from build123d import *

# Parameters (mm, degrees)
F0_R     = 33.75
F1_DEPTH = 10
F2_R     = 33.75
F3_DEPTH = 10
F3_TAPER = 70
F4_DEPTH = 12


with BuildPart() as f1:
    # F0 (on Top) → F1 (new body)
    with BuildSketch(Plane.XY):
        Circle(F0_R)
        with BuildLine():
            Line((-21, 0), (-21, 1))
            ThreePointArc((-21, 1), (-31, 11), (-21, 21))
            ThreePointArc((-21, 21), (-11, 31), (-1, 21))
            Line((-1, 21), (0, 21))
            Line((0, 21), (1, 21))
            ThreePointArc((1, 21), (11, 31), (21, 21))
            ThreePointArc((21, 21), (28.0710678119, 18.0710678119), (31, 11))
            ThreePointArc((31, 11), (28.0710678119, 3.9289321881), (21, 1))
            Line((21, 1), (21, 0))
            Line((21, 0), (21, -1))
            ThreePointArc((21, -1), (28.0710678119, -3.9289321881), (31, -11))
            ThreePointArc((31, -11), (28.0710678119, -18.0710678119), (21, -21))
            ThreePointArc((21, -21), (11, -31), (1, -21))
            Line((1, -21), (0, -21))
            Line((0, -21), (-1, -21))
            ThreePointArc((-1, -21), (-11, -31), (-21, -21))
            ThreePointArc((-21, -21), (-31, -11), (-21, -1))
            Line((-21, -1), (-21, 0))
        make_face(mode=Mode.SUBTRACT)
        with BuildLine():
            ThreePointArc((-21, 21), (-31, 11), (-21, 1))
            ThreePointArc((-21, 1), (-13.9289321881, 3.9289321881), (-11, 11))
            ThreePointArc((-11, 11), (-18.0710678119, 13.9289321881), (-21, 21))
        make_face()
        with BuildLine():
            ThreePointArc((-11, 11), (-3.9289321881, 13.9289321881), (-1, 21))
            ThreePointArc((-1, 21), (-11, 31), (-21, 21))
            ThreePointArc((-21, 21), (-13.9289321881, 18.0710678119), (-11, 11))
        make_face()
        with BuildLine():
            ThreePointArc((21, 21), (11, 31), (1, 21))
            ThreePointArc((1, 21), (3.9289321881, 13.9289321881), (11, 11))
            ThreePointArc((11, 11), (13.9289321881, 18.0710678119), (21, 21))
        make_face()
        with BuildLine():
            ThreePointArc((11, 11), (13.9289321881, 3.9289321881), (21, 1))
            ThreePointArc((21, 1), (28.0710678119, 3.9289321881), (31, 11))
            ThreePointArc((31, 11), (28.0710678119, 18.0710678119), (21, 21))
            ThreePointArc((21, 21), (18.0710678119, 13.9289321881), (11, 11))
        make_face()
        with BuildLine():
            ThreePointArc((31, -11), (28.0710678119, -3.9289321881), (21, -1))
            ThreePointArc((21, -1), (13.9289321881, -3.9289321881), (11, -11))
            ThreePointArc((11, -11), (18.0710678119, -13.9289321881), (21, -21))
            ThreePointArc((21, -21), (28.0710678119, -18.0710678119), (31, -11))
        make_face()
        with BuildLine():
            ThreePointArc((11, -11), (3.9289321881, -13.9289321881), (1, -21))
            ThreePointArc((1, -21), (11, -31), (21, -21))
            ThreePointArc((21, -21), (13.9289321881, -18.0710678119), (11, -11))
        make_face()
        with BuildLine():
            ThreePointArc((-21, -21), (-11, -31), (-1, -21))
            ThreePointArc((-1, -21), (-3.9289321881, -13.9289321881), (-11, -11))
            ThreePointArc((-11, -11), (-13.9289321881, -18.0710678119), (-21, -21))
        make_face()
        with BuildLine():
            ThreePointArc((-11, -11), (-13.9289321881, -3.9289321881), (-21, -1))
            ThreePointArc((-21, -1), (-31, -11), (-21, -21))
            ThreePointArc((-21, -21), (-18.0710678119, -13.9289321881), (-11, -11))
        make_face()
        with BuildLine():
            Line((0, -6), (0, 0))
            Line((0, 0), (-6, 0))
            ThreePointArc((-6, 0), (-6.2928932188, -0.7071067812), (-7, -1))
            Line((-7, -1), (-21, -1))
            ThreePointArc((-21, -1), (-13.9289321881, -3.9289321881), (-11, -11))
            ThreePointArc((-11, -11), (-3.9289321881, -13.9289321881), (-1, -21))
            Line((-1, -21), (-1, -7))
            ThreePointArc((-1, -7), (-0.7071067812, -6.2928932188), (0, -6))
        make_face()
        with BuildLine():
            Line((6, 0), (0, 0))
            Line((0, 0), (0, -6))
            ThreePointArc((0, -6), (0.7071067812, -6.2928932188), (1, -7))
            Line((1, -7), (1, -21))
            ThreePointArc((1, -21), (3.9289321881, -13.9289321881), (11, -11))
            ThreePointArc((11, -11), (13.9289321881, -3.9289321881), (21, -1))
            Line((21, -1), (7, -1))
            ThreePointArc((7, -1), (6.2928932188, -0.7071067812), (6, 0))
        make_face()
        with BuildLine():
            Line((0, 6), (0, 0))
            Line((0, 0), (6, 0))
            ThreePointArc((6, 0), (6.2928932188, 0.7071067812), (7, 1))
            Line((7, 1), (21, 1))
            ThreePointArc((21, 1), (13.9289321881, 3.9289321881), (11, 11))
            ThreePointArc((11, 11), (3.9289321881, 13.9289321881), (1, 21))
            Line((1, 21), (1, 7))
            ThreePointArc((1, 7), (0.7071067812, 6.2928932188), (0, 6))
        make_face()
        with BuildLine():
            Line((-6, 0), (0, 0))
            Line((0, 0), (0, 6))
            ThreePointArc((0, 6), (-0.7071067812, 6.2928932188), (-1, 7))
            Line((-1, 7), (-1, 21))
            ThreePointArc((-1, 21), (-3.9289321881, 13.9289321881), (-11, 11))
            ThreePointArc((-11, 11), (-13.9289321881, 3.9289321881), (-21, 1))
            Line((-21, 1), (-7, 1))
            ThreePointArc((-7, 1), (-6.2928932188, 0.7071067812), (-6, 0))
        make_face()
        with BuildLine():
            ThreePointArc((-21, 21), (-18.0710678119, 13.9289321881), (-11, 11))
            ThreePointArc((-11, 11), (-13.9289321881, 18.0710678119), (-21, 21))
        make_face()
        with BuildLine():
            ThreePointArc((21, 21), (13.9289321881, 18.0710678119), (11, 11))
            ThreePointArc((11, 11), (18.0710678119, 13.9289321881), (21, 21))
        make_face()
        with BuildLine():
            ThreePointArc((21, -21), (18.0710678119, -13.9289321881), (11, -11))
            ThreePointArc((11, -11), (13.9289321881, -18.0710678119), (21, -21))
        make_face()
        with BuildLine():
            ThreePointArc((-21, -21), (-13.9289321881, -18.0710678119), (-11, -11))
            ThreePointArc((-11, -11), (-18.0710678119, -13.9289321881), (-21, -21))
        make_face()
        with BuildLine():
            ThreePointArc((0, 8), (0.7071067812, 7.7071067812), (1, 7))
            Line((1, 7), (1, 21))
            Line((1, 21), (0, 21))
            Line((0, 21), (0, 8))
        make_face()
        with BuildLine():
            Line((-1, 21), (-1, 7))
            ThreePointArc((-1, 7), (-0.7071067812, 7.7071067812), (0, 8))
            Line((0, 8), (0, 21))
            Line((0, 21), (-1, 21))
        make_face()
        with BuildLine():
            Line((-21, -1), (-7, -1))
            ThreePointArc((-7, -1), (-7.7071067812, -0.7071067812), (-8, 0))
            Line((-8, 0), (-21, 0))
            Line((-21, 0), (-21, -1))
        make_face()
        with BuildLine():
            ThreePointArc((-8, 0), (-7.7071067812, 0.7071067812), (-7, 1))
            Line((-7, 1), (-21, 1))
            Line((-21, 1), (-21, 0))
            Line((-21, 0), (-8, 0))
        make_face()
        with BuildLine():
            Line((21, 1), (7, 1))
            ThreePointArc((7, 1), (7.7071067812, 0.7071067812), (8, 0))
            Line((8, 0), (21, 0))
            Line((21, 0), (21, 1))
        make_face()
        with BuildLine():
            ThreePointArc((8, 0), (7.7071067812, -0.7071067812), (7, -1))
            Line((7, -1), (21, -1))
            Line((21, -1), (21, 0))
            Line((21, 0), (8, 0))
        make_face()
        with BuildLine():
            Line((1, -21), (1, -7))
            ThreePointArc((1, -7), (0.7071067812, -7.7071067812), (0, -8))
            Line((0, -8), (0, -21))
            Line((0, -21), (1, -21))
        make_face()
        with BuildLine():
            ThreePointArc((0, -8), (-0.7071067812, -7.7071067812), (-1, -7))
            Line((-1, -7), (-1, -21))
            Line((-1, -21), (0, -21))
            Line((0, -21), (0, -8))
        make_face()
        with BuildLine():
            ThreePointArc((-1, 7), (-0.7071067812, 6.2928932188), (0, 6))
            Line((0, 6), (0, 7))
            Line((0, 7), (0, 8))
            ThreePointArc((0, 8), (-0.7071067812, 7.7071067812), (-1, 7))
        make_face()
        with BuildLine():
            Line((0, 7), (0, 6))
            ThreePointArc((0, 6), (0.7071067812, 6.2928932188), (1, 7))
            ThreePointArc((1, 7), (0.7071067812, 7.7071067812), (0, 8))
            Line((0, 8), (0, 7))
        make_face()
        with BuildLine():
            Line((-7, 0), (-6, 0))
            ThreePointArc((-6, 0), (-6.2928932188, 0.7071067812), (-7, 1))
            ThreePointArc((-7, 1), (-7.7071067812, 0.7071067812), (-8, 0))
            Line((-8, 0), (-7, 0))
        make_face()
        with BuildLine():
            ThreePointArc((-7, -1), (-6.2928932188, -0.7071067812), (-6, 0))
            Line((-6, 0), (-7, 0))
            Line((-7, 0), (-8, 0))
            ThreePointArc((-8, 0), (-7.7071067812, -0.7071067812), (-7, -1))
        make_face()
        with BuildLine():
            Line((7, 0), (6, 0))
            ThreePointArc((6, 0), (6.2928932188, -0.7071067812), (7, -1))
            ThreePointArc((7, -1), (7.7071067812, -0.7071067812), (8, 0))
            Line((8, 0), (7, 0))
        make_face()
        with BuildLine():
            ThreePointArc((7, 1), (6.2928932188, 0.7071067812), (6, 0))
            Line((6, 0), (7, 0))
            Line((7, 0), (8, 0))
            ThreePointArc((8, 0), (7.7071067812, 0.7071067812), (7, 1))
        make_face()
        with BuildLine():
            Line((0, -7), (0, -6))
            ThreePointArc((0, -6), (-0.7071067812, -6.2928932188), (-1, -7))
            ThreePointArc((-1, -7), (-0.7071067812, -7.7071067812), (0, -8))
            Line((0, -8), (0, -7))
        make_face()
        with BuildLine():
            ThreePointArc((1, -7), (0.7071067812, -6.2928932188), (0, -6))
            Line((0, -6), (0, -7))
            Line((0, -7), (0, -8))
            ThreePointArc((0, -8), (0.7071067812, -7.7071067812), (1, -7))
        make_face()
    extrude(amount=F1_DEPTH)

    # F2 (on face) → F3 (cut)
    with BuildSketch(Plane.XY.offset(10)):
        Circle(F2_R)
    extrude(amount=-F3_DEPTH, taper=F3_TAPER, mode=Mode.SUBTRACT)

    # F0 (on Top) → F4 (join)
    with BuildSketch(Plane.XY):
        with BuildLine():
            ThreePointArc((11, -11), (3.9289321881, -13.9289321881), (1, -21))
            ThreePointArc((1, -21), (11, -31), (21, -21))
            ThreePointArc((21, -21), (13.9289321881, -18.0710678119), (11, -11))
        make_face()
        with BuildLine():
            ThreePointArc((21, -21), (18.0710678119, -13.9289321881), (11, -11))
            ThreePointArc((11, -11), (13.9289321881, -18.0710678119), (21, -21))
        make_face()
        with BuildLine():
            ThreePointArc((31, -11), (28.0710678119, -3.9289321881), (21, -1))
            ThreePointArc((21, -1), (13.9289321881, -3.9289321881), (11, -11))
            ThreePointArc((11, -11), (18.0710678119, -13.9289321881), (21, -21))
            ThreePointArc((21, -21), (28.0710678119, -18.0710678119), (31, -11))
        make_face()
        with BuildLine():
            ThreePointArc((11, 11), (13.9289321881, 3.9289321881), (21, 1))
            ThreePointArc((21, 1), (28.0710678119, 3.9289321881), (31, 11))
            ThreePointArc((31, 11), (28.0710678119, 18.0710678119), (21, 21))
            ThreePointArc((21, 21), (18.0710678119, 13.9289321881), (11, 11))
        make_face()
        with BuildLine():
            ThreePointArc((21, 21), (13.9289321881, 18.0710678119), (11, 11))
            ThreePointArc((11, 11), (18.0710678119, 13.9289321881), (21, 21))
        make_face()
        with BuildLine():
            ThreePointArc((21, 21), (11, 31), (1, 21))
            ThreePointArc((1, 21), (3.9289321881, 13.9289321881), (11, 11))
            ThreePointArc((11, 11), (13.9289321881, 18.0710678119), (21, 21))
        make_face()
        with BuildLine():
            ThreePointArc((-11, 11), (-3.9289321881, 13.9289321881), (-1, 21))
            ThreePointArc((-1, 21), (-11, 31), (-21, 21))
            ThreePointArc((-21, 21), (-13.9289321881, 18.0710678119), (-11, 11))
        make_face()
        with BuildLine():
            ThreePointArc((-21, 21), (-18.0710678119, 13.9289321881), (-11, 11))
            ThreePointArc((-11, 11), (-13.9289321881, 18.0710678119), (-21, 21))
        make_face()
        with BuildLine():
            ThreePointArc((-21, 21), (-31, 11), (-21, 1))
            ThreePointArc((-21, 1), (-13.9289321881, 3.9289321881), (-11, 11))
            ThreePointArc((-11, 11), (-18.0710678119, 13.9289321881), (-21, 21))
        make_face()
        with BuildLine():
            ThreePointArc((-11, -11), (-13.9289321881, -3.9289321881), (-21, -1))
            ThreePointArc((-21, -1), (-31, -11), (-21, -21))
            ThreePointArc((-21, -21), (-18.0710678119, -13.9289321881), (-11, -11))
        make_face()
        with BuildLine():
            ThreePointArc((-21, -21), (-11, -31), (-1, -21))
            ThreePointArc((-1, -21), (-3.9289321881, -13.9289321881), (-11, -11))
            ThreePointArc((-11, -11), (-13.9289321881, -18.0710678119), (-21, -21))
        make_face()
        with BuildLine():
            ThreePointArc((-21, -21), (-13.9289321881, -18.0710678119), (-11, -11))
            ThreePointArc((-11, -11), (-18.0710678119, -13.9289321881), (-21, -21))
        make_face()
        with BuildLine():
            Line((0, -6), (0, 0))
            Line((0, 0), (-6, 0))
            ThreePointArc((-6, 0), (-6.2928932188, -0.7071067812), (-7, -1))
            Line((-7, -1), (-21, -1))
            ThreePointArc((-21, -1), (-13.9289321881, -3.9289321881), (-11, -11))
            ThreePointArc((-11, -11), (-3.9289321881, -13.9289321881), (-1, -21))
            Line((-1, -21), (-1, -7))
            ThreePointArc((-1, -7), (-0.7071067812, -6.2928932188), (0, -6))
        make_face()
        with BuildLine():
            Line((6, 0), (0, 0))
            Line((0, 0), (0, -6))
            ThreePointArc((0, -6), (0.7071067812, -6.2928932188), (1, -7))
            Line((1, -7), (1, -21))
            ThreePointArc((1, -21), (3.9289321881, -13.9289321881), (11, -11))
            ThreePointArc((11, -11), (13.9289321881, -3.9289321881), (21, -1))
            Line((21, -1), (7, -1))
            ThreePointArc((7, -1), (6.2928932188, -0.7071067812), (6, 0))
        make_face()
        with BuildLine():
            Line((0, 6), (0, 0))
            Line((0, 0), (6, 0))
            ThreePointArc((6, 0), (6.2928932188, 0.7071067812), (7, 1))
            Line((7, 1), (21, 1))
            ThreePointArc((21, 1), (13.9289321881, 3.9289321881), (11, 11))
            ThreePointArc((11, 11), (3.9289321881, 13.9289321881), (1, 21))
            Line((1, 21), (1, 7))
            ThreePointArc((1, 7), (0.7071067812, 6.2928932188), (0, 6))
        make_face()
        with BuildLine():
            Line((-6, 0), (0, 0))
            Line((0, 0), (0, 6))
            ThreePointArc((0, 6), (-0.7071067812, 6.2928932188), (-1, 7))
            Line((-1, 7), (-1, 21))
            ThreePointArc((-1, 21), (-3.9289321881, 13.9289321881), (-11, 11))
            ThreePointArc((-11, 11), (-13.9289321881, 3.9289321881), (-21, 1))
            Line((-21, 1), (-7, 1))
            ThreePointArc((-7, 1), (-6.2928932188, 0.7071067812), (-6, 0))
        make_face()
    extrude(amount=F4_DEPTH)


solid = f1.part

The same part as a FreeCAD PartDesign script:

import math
import FreeCAD as App
import Part
import Sketcher
from FreeCAD import Vector
Q = App.Units.Quantity

doc = App.newDocument("Part")
body = doc.addObject("PartDesign::Body", "Body")

# Sketch on XY plane
sketch1 = body.newObject("Sketcher::SketchObject", "Sketch")
sketch1.AttachmentSupport = (doc.getObject("XY_Plane"), [""])
sketch1.MapMode = "FlatFace"
sketch1.addGeometry(Part.Circle(Vector(0, 0, 0), Vector(0, 0, 1), 34), False)
sketch1.addConstraint([
    Sketcher.Constraint("Coincident", 0, 3, -1, 1),
    Sketcher.Constraint("Diameter", 0, Q("67.5 mm")),
])
pad1 = body.newObject("PartDesign::Pad", "Pad")
pad1.Profile = sketch1
pad1.Length = 10

# Sketch on XY plane
sketch2 = body.newObject("Sketcher::SketchObject", "Sketch001")
sketch2.AttachmentSupport = (doc.getObject("XY_Plane"), [""])
sketch2.MapMode = "FlatFace"
sketch2.AttachmentOffset = App.Placement(Vector(0, 0, 10), App.Rotation())
sketch2.addGeometry(Part.Circle(Vector(0, 0, 0), Vector(0, 0, 1), 34), False)
sketch2.addConstraint([
    Sketcher.Constraint("Coincident", 0, 3, -1, 1),
    Sketcher.Constraint("Diameter", 0, Q("67.5 mm")),
])
pocket1 = body.newObject("PartDesign::Pocket", "Pocket")
pocket1.Profile = sketch2
pocket1.Length = 10
pocket1.TaperAngle = -70

# Sketch on XY plane
sketch3 = body.newObject("Sketcher::SketchObject", "Sketch002")
sketch3.AttachmentSupport = (doc.getObject("XY_Plane"), [""])
sketch3.MapMode = "FlatFace"
sketch3.addGeometry([
    Part.ArcOfCircle(Part.Circle(Vector(11, -21, 0), Vector(0, 0, 1), 10), math.radians(180), math.radians(360)),  # 0
    Part.ArcOfCircle(Part.Circle(Vector(21, -11, 0), Vector(0, 0, 1), 10), math.radians(-90), math.radians(0)),  # 1
    Part.ArcOfCircle(Part.Circle(Vector(21, -11, 0), Vector(0, 0, 1), 10), math.radians(0), math.radians(90)),  # 2
    Part.LineSegment(Vector(21, -1, 0), Vector(7, -1, 0)),  # 3
    Part.ArcOfCircle(Part.Circle(Vector(7, 0, 0), Vector(0, 0, 1), 1), math.radians(180), math.radians(270)),  # 4
    Part.ArcOfCircle(Part.Circle(Vector(7, 0, 0), Vector(0, 0, 1), 1), math.radians(90), math.radians(180)),  # 5
    Part.LineSegment(Vector(7, 1, 0), Vector(21, 1, 0)),  # 6
    Part.ArcOfCircle(Part.Circle(Vector(21, 11, 0), Vector(0, 0, 1), 10), math.radians(-90), math.radians(0)),  # 7
    Part.ArcOfCircle(Part.Circle(Vector(21, 11, 0), Vector(0, 0, 1), 10), math.radians(0), math.radians(90)),  # 8
    Part.ArcOfCircle(Part.Circle(Vector(11, 21, 0), Vector(0, 0, 1), 10), math.radians(0), math.radians(180)),  # 9
    Part.LineSegment(Vector(1, 21, 0), Vector(1, 7, 0)),  # 10
    Part.ArcOfCircle(Part.Circle(Vector(0, 7, 0), Vector(0, 0, 1), 1), math.radians(-90), math.radians(0)),  # 11
    Part.ArcOfCircle(Part.Circle(Vector(0, 7, 0), Vector(0, 0, 1), 1), math.radians(180), math.radians(270)),  # 12
    Part.LineSegment(Vector(-1, 7, 0), Vector(-1, 21, 0)),  # 13
    Part.ArcOfCircle(Part.Circle(Vector(-11, 21, 0), Vector(0, 0, 1), 10), math.radians(0), math.radians(180)),  # 14
    Part.ArcOfCircle(Part.Circle(Vector(-21, 11, 0), Vector(0, 0, 1), 10), math.radians(90), math.radians(270)),  # 15
    Part.LineSegment(Vector(-21, 1, 0), Vector(-7, 1, 0)),  # 16
    Part.ArcOfCircle(Part.Circle(Vector(-7, 0, 0), Vector(0, 0, 1), 1), math.radians(0), math.radians(90)),  # 17
    Part.ArcOfCircle(Part.Circle(Vector(-7, 0, 0), Vector(0, 0, 1), 1), math.radians(-90), math.radians(0)),  # 18
    Part.LineSegment(Vector(-7, -1, 0), Vector(-21, -1, 0)),  # 19
    Part.ArcOfCircle(Part.Circle(Vector(-21, -11, 0), Vector(0, 0, 1), 10), math.radians(90), math.radians(270)),  # 20
    Part.ArcOfCircle(Part.Circle(Vector(-11, -21, 0), Vector(0, 0, 1), 10), math.radians(180), math.radians(360)),  # 21
    Part.LineSegment(Vector(-1, -21, 0), Vector(-1, -7, 0)),  # 22
    Part.ArcOfCircle(Part.Circle(Vector(0, -7, 0), Vector(0, 0, 1), 1), math.radians(90), math.radians(180)),  # 23
    Part.ArcOfCircle(Part.Circle(Vector(0, -7, 0), Vector(0, 0, 1), 1), math.radians(0), math.radians(90)),  # 24
    Part.LineSegment(Vector(1, -7, 0), Vector(1, -21, 0)),  # 25
], False)
sketch3.addConstraint([
    Sketcher.Constraint("Coincident", 0, 2, 1, 1),
    Sketcher.Constraint("Tangent", 1, 2, 2, 1),
    Sketcher.Constraint("Tangent", 2, 2, 3, 1),
    Sketcher.Constraint("Tangent", 3, 2, 4, 2),
    Sketcher.Constraint("Tangent", 4, 1, 5, 2),
    Sketcher.Constraint("Tangent", 5, 1, 6, 1),
    Sketcher.Constraint("Tangent", 6, 2, 7, 1),
    Sketcher.Constraint("Tangent", 7, 2, 8, 1),
    Sketcher.Constraint("Coincident", 8, 2, 9, 1),
    Sketcher.Constraint("Tangent", 9, 2, 10, 1),
    Sketcher.Constraint("Tangent", 10, 2, 11, 2),
    Sketcher.Constraint("Tangent", 11, 1, 12, 2),
    Sketcher.Constraint("Tangent", 12, 1, 13, 1),
    Sketcher.Constraint("Tangent", 13, 2, 14, 1),
    Sketcher.Constraint("Coincident", 14, 2, 15, 1),
    Sketcher.Constraint("Tangent", 15, 2, 16, 1),
    Sketcher.Constraint("Tangent", 16, 2, 17, 2),
    Sketcher.Constraint("Tangent", 17, 1, 18, 2),
    Sketcher.Constraint("Tangent", 18, 1, 19, 1),
    Sketcher.Constraint("Tangent", 19, 2, 20, 1),
    Sketcher.Constraint("Coincident", 20, 2, 21, 1),
    Sketcher.Constraint("Tangent", 21, 2, 22, 1),
    Sketcher.Constraint("Tangent", 22, 2, 23, 2),
    Sketcher.Constraint("Tangent", 23, 1, 24, 2),
    Sketcher.Constraint("Tangent", 24, 1, 25, 1),
    Sketcher.Constraint("Tangent", 25, 2, 0, 1),
    Sketcher.Constraint("Horizontal", 3),
    Sketcher.Constraint("Horizontal", 6),
    Sketcher.Constraint("Vertical", 10),
    Sketcher.Constraint("Vertical", 13),
    Sketcher.Constraint("Horizontal", 16),
    Sketcher.Constraint("Horizontal", 19),
    Sketcher.Constraint("Vertical", 22),
    Sketcher.Constraint("Vertical", 25),
    Sketcher.Constraint("Equal", 0, 1),
    Sketcher.Constraint("Equal", 1, 2),
    Sketcher.Constraint("Equal", 4, 5),
    Sketcher.Constraint("Equal", 2, 7),
    Sketcher.Constraint("Equal", 7, 8),
    Sketcher.Constraint("Equal", 8, 9),
    Sketcher.Constraint("Equal", 5, 11),
    Sketcher.Constraint("Equal", 11, 12),
    Sketcher.Constraint("Equal", 9, 14),
    Sketcher.Constraint("Equal", 14, 15),
    Sketcher.Constraint("Equal", 12, 17),
    Sketcher.Constraint("Equal", 17, 18),
    Sketcher.Constraint("Equal", 15, 20),
    Sketcher.Constraint("Equal", 20, 21),
    Sketcher.Constraint("Equal", 18, 23),
    Sketcher.Constraint("Equal", 23, 24),
    Sketcher.Constraint("Symmetric", 0, 3, 14, 3, -1, 1),
    Sketcher.Constraint("Symmetric", 1, 3, 15, 3, -1, 1),
    Sketcher.Constraint("Symmetric", 4, 1, 17, 1, -1, 1),
    Sketcher.Constraint("Symmetric", 11, 1, 23, 1, -1, 1),
    Sketcher.Constraint("Symmetric", 9, 3, 14, 3, -2),
    Sketcher.Constraint("Symmetric", 7, 3, 15, 3, -2),
    Sketcher.Constraint("PointOnObject", 4, 1, -1),
    Sketcher.Constraint("PointOnObject", 11, 1, -2),
    Sketcher.Constraint("Horizontal", 0, 3, 21, 3),
    Sketcher.Constraint("Horizontal", 21, 3, 0, 2),
    Sketcher.Constraint("Horizontal", 20, 3, 1, 2),
    Sketcher.Constraint("Horizontal", 15, 3, 7, 2),
    Sketcher.Constraint("Vertical", 15, 3, 20, 3),
    Sketcher.Constraint("Vertical", 8, 3, 0, 2),
    Sketcher.Constraint("Equal", 19, 10),
    Sketcher.Constraint("Radius", 0, Q("10 mm")),
    Sketcher.Constraint("Radius", 4, Q("1 mm")),
    Sketcher.Constraint("DistanceX", 3, 2, 3, 1, Q("14 mm")),
])
pad2 = body.newObject("PartDesign::Pad", "Pad001")
pad2.Profile = sketch3
pad2.Length = 12

doc.recompute()
